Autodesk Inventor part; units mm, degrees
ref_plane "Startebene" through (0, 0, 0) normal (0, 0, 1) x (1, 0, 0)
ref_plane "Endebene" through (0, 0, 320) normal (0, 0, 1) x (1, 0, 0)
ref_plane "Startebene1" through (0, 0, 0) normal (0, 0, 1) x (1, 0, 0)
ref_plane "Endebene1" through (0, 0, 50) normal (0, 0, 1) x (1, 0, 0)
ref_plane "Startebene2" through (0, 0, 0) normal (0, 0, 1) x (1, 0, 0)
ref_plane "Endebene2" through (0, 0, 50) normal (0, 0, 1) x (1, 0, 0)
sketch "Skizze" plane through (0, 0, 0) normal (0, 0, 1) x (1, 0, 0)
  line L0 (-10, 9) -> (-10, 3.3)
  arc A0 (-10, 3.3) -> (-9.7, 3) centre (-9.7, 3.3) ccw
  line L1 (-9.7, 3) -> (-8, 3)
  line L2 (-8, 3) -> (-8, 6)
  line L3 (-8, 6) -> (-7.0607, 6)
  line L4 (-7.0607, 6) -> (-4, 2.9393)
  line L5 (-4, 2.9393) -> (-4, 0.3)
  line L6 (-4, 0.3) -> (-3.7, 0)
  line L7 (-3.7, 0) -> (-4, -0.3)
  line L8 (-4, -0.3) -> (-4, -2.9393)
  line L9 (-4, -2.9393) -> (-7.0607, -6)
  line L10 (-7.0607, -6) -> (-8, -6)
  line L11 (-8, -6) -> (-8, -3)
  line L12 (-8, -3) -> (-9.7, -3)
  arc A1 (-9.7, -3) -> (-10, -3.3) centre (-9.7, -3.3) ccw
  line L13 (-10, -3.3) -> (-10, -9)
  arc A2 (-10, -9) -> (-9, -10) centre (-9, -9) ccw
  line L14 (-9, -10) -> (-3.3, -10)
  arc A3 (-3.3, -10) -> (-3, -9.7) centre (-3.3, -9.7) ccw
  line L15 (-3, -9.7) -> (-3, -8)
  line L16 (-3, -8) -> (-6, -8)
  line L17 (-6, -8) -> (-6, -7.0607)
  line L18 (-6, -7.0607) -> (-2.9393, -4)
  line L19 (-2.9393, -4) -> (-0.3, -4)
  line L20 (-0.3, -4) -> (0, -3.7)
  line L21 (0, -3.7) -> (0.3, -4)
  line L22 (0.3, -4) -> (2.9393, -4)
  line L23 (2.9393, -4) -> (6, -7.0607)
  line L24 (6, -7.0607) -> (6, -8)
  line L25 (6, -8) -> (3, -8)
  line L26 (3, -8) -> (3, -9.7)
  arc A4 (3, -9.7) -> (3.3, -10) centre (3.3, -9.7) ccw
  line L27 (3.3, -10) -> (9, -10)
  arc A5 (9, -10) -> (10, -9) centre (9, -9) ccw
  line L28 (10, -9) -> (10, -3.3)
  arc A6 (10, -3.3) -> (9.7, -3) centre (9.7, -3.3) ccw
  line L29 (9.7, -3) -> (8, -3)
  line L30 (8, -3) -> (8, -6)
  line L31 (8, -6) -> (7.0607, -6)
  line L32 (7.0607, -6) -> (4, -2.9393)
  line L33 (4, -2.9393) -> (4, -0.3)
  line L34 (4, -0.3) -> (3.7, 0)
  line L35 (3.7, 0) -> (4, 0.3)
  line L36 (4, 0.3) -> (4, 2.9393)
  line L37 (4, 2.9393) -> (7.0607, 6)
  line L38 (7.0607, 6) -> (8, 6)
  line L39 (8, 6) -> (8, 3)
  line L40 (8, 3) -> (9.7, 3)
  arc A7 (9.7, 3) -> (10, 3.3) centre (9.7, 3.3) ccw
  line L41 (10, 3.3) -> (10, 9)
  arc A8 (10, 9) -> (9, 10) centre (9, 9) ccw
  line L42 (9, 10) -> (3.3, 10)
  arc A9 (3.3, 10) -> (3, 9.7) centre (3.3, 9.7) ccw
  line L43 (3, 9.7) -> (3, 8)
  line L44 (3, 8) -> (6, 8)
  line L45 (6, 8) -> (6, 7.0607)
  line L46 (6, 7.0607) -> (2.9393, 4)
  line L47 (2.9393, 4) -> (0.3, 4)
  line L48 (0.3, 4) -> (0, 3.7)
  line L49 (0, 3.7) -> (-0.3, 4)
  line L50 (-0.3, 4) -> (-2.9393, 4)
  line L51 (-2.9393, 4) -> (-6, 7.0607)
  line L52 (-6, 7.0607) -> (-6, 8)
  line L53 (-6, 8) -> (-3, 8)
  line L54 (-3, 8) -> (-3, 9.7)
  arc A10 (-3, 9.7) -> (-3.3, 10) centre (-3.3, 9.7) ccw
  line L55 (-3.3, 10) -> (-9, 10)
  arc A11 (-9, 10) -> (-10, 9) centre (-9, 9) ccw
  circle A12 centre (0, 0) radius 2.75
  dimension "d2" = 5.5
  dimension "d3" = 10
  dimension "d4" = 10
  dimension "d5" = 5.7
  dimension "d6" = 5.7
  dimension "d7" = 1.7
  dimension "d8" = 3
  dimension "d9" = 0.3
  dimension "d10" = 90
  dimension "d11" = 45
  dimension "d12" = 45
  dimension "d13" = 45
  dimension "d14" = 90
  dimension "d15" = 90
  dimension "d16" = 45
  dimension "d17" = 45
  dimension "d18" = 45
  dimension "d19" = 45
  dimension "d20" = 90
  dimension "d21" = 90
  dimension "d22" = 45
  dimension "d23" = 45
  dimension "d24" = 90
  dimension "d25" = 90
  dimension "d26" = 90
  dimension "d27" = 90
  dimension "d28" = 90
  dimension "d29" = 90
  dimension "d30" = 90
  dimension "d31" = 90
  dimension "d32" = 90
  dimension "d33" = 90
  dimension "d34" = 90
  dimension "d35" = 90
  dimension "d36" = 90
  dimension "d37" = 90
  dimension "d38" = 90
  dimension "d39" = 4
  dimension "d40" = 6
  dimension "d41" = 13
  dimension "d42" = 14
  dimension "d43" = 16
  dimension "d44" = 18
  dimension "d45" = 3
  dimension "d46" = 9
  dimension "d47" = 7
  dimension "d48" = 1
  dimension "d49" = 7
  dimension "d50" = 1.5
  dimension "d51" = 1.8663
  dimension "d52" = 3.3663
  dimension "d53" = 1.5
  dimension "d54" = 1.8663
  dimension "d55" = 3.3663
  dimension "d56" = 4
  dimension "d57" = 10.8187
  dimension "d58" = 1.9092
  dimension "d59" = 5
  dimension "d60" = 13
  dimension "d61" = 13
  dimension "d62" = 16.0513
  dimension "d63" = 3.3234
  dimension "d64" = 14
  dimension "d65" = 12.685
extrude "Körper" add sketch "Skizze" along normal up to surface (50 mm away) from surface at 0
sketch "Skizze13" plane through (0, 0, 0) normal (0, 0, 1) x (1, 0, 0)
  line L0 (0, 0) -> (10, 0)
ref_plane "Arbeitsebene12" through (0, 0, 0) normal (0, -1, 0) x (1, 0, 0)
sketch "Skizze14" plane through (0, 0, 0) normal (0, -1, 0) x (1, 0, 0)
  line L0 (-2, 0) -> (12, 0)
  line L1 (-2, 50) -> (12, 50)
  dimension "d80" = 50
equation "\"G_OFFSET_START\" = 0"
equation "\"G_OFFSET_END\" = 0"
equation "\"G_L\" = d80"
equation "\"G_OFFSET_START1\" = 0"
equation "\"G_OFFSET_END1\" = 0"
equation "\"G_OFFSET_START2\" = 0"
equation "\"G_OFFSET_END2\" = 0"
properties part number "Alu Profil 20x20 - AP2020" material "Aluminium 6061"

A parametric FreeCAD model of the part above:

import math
import FreeCAD as App
import Part
import Sketcher
Q = App.Units.Quantity

doc = App.newDocument("Part")
body = doc.addObject("PartDesign::Body", "Body")

# Sketch on XY plane
sketch1 = doc.addObject("Sketcher::SketchObject", "Sketch")
body.addObject(sketch1)
sketch1.AttachmentSupport = (doc.XY_Plane, [""])
sketch1.MapMode = "FlatFace"
sketch1.addGeometry(Part.ArcOfCircle(Part.Circle(App.Vector(-9, 9, 0), App.Vector(0, 0, 1), 1), math.radians(90), math.radians(180)), False)
sketch1.addGeometry(Part.LineSegment(App.Vector(-10, 9, 0), App.Vector(-10, 3.3, 0)), False)
sketch1.addGeometry(Part.ArcOfCircle(Part.Circle(App.Vector(-9.7, 3.3, 0), App.Vector(0, 0, 1), 0.3), math.radians(180), math.radians(270)), False)
sketch1.addGeometry(Part.LineSegment(App.Vector(-9.7, 3, 0), App.Vector(-8, 3, 0)), False)
sketch1.addGeometry(Part.LineSegment(App.Vector(-8, 3, 0), App.Vector(-8, 6, 0)), False)
sketch1.addGeometry(Part.LineSegment(App.Vector(-8, 6, 0), App.Vector(-7.06, 6, 0)), False)
sketch1.addGeometry(Part.LineSegment(App.Vector(-7.06, 6, 0), App.Vector(-4, 2.94, 0)), False)
sketch1.addGeometry(Part.LineSegment(App.Vector(-4, 2.94, 0), App.Vector(-4, 0.3, 0)), False)
sketch1.addGeometry(Part.LineSegment(App.Vector(-4, 0.3, 0), App.Vector(-3.7, 0, 0)), False)
sketch1.addGeometry(Part.LineSegment(App.Vector(-3.7, 0, 0), App.Vector(-4, -0.3, 0)), False)
sketch1.addGeometry(Part.LineSegment(App.Vector(-4, -0.3, 0), App.Vector(-4, -2.94, 0)), False)
sketch1.addGeometry(Part.LineSegment(App.Vector(-4, -2.94, 0), App.Vector(-7.06, -6, 0)), False)
sketch1.addGeometry(Part.LineSegment(App.Vector(-7.06, -6, 0), App.Vector(-8, -6, 0)), False)
sketch1.addGeometry(Part.LineSegment(App.Vector(-8, -6, 0), App.Vector(-8, -3, 0)), False)
sketch1.addGeometry(Part.LineSegment(App.Vector(-8, -3, 0), App.Vector(-9.7, -3, 0)), False)
sketch1.addGeometry(Part.ArcOfCircle(Part.Circle(App.Vector(-9.7, -3.3, 0), App.Vector(0, 0, 1), 0.3), math.radians(90), math.radians(180)), False)
sketch1.addGeometry(Part.LineSegment(App.Vector(-10, -3.3, 0), App.Vector(-10, -9, 0)), False)
sketch1.addGeometry(Part.ArcOfCircle(Part.Circle(App.Vector(-9, -9, 0), App.Vector(0, 0, 1), 1), math.radians(180), math.radians(270)), False)
sketch1.addGeometry(Part.LineSegment(App.Vector(-9, -10, 0), App.Vector(-3.3, -10, 0)), False)
sketch1.addGeometry(Part.ArcOfCircle(Part.Circle(App.Vector(-3.3, -9.7, 0), App.Vector(0, 0, 1), 0.3), math.radians(-90), math.radians(0)), False)
sketch1.addGeometry(Part.LineSegment(App.Vector(-3, -9.7, 0), App.Vector(-3, -8, 0)), False)
sketch1.addGeometry(Part.LineSegment(App.Vector(-3, -8, 0), App.Vector(-6, -8, 0)), False)
sketch1.addGeometry(Part.LineSegment(App.Vector(-6, -8, 0), App.Vector(-6, -7.06, 0)), False)
sketch1.addGeometry(Part.LineSegment(App.Vector(-6, -7.06, 0), App.Vector(-2.94, -4, 0)), False)
sketch1.addGeometry(Part.LineSegment(App.Vector(-2.94, -4, 0), App.Vector(-0.3, -4, 0)), False)
sketch1.addGeometry(Part.LineSegment(App.Vector(-0.3, -4, 0), App.Vector(0, -3.7, 0)), False)
sketch1.addGeometry(Part.LineSegment(App.Vector(0, -3.7, 0), App.Vector(0.3, -4, 0)), False)
sketch1.addGeometry(Part.LineSegment(App.Vector(0.3, -4, 0), App.Vector(2.94, -4, 0)), False)
sketch1.addGeometry(Part.LineSegment(App.Vector(2.94, -4, 0), App.Vector(6, -7.06, 0)), False)
sketch1.addGeometry(Part.LineSegment(App.Vector(6, -7.06, 0), App.Vector(6, -8, 0)), False)
sketch1.addGeometry(Part.LineSegment(App.Vector(6, -8, 0), App.Vector(3, -8, 0)), False)
sketch1.addGeometry(Part.LineSegment(App.Vector(3, -8, 0), App.Vector(3, -9.7, 0)), False)
sketch1.addGeometry(Part.ArcOfCircle(Part.Circle(App.Vector(3.3, -9.7, 0), App.Vector(0, 0, 1), 0.3), math.radians(180), math.radians(270)), False)
sketch1.addGeometry(Part.LineSegment(App.Vector(3.3, -10, 0), App.Vector(9, -10, 0)), False)
sketch1.addGeometry(Part.ArcOfCircle(Part.Circle(App.Vector(9, -9, 0), App.Vector(0, 0, 1), 1), math.radians(-90), math.radians(0)), False)
sketch1.addGeometry(Part.LineSegment(App.Vector(10, -9, 0), App.Vector(10, -3.3, 0)), False)
sketch1.addGeometry(Part.ArcOfCircle(Part.Circle(App.Vector(9.7, -3.3, 0), App.Vector(0, 0, 1), 0.3), math.radians(0), math.radians(90)), False)
sketch1.addGeometry(Part.LineSegment(App.Vector(9.7, -3, 0), App.Vector(8, -3, 0)), False)
sketch1.addGeometry(Part.LineSegment(App.Vector(8, -3, 0), App.Vector(8, -6, 0)), False)
sketch1.addGeometry(Part.LineSegment(App.Vector(8, -6, 0), App.Vector(7.06, -6, 0)), False)
sketch1.addGeometry(Part.LineSegment(App.Vector(7.06, -6, 0), App.Vector(4, -2.94, 0)), False)
sketch1.addGeometry(Part.LineSegment(App.Vector(4, -2.94, 0), App.Vector(4, -0.3, 0)), False)
sketch1.addGeometry(Part.LineSegment(App.Vector(4, -0.3, 0), App.Vector(3.7, 0, 0)), False)
sketch1.addGeometry(Part.LineSegment(App.Vector(3.7, 0, 0), App.Vector(4, 0.3, 0)), False)
sketch1.addGeometry(Part.LineSegment(App.Vector(4, 0.3, 0), App.Vector(4, 2.94, 0)), False)
sketch1.addGeometry(Part.LineSegment(App.Vector(4, 2.94, 0), App.Vector(7.06, 6, 0)), False)
sketch1.addGeometry(Part.LineSegment(App.Vector(7.06, 6, 0), App.Vector(8, 6, 0)), False)
sketch1.addGeometry(Part.LineSegment(App.Vector(8, 6, 0), App.Vector(8, 3, 0)), False)
sketch1.addGeometry(Part.LineSegment(App.Vector(8, 3, 0), App.Vector(9.7, 3, 0)), False)
sketch1.addGeometry(Part.ArcOfCircle(Part.Circle(App.Vector(9.7, 3.3, 0), App.Vector(0, 0, 1), 0.3), math.radians(-90), math.radians(0)), False)
sketch1.addGeometry(Part.LineSegment(App.Vector(10, 3.3, 0), App.Vector(10, 9, 0)), False)
sketch1.addGeometry(Part.ArcOfCircle(Part.Circle(App.Vector(9, 9, 0), App.Vector(0, 0, 1), 1), math.radians(0), math.radians(90)), False)
sketch1.addGeometry(Part.LineSegment(App.Vector(9, 10, 0), App.Vector(3.3, 10, 0)), False)
sketch1.addGeometry(Part.ArcOfCircle(Part.Circle(App.Vector(3.3, 9.7, 0), App.Vector(0, 0, 1), 0.3), math.radians(90), math.radians(180)), False)
sketch1.addGeometry(Part.LineSegment(App.Vector(3, 9.7, 0), App.Vector(3, 8, 0)), False)
sketch1.addGeometry(Part.LineSegment(App.Vector(3, 8, 0), App.Vector(6, 8, 0)), False)
sketch1.addGeometry(Part.LineSegment(App.Vector(6, 8, 0), App.Vector(6, 7.06, 0)), False)
sketch1.addGeometry(Part.LineSegment(App.Vector(6, 7.06, 0), App.Vector(2.94, 4, 0)), False)
sketch1.addGeometry(Part.LineSegment(App.Vector(2.94, 4, 0), App.Vector(0.3, 4, 0)), False)
sketch1.addGeometry(Part.LineSegment(App.Vector(0.3, 4, 0), App.Vector(0, 3.7, 0)), False)
sketch1.addGeometry(Part.LineSegment(App.Vector(0, 3.7, 0), App.Vector(-0.3, 4, 0)), False)
sketch1.addGeometry(Part.LineSegment(App.Vector(-0.3, 4, 0), App.Vector(-2.94, 4, 0)), False)
sketch1.addGeometry(Part.LineSegment(App.Vector(-2.94, 4, 0), App.Vector(-6, 7.06, 0)), False)
sketch1.addGeometry(Part.LineSegment(App.Vector(-6, 7.06, 0), App.Vector(-6, 8, 0)), False)
sketch1.addGeometry(Part.LineSegment(App.Vector(-6, 8, 0), App.Vector(-3, 8, 0)), False)
sketch1.addGeometry(Part.LineSegment(App.Vector(-3, 8, 0), App.Vector(-3, 9.7, 0)), False)
sketch1.addGeometry(Part.ArcOfCircle(Part.Circle(App.Vector(-3.3, 9.7, 0), App.Vector(0, 0, 1), 0.3), math.radians(0), math.radians(90)), False)
sketch1.addGeometry(Part.LineSegment(App.Vector(-3.3, 10, 0), App.Vector(-9, 10, 0)), False)
sketch1.addGeometry(Part.Circle(App.Vector(0, 0, 0), App.Vector(0, 0, 1), 2.75), False)
sketch1.addConstraint(Sketcher.Constraint("Tangent", 0, 2, 1, 1))
sketch1.addConstraint(Sketcher.Constraint("Tangent", 1, 2, 2, 1))
sketch1.addConstraint(Sketcher.Constraint("Tangent", 2, 2, 3, 1))
sketch1.addConstraint(Sketcher.Constraint("Coincident", 3, 2, 4, 1))
sketch1.addConstraint(Sketcher.Constraint("Coincident", 4, 2, 5, 1))
sketch1.addConstraint(Sketcher.Constraint("Coincident", 5, 2, 6, 1))
sketch1.addConstraint(Sketcher.Constraint("Coincident", 6, 2, 7, 1))
sketch1.addConstraint(Sketcher.Constraint("Coincident", 7, 2, 8, 1))
sketch1.addConstraint(Sketcher.Constraint("Coincident", 8, 2, 9, 1))
sketch1.addConstraint(Sketcher.Constraint("Coincident", 9, 2, 10, 1))
sketch1.addConstraint(Sketcher.Constraint("Coincident", 10, 2, 11, 1))
sketch1.addConstraint(Sketcher.Constraint("Coincident", 11, 2, 12, 1))
sketch1.addConstraint(Sketcher.Constraint("Coincident", 12, 2, 13, 1))
sketch1.addConstraint(Sketcher.Constraint("Coincident", 13, 2, 14, 1))
sketch1.addConstraint(Sketcher.Constraint("Tangent", 14, 2, 15, 1))
sketch1.addConstraint(Sketcher.Constraint("Tangent", 15, 2, 16, 1))
sketch1.addConstraint(Sketcher.Constraint("Tangent", 16, 2, 17, 1))
sketch1.addConstraint(Sketcher.Constraint("Tangent", 17, 2, 18, 1))
sketch1.addConstraint(Sketcher.Constraint("Tangent", 18, 2, 19, 1))
sketch1.addConstraint(Sketcher.Constraint("Tangent", 19, 2, 20, 1))
sketch1.addConstraint(Sketcher.Constraint("Coincident", 20, 2, 21, 1))
sketch1.addConstraint(Sketcher.Constraint("Coincident", 21, 2, 22, 1))
sketch1.addConstraint(Sketcher.Constraint("Coincident", 22, 2, 23, 1))
sketch1.addConstraint(Sketcher.Constraint("Coincident", 23, 2, 24, 1))
sketch1.addConstraint(Sketcher.Constraint("Coincident", 24, 2, 25, 1))
sketch1.addConstraint(Sketcher.Constraint("Coincident", 25, 2, 26, 1))
sketch1.addConstraint(Sketcher.Constraint("Coincident", 26, 2, 27, 1))
sketch1.addConstraint(Sketcher.Constraint("Coincident", 27, 2, 28, 1))
sketch1.addConstraint(Sketcher.Constraint("Coincident", 28, 2, 29, 1))
sketch1.addConstraint(Sketcher.Constraint("Coincident", 29, 2, 30, 1))
sketch1.addConstraint(Sketcher.Constraint("Coincident", 30, 2, 31, 1))
sketch1.addConstraint(Sketcher.Constraint("Tangent", 31, 2, 32, 1))
sketch1.addConstraint(Sketcher.Constraint("Tangent", 32, 2, 33, 1))
sketch1.addConstraint(Sketcher.Constraint("Tangent", 33, 2, 34, 1))
sketch1.addConstraint(Sketcher.Constraint("Tangent", 34, 2, 35, 1))
sketch1.addConstraint(Sketcher.Constraint("Tangent", 35, 2, 36, 1))
sketch1.addConstraint(Sketcher.Constraint("Tangent", 36, 2, 37, 1))
sketch1.addConstraint(Sketcher.Constraint("Coincident", 37, 2, 38, 1))
sketch1.addConstraint(Sketcher.Constraint("Coincident", 38, 2, 39, 1))
sketch1.addConstraint(Sketcher.Constraint("Coincident", 39, 2, 40, 1))
sketch1.addConstraint(Sketcher.Constraint("Coincident", 40, 2, 41, 1))
sketch1.addConstraint(Sketcher.Constraint("Coincident", 41, 2, 42, 1))
sketch1.addConstraint(Sketcher.Constraint("Coincident", 42, 2, 43, 1))
sketch1.addConstraint(Sketcher.Constraint("Coincident", 43, 2, 44, 1))
sketch1.addConstraint(Sketcher.Constraint("Coincident", 44, 2, 45, 1))
sketch1.addConstraint(Sketcher.Constraint("Coincident", 45, 2, 46, 1))
sketch1.addConstraint(Sketcher.Constraint("Coincident", 46, 2, 47, 1))
sketch1.addConstraint(Sketcher.Constraint("Coincident", 47, 2, 48, 1))
sketch1.addConstraint(Sketcher.Constraint("Tangent", 48, 2, 49, 1))
sketch1.addConstraint(Sketcher.Constraint("Tangent", 49, 2, 50, 1))
sketch1.addConstraint(Sketcher.Constraint("Tangent", 50, 2, 51, 1))
sketch1.addConstraint(Sketcher.Constraint("Tangent", 51, 2, 52, 1))
sketch1.addConstraint(Sketcher.Constraint("Tangent", 52, 2, 53, 1))
sketch1.addConstraint(Sketcher.Constraint("Tangent", 53, 2, 54, 1))
sketch1.addConstraint(Sketcher.Constraint("Coincident", 54, 2, 55, 1))
sketch1.addConstraint(Sketcher.Constraint("Coincident", 55, 2, 56, 1))
sketch1.addConstraint(Sketcher.Constraint("Coincident", 56, 2, 57, 1))
sketch1.addConstraint(Sketcher.Constraint("Coincident", 57, 2, 58, 1))
sketch1.addConstraint(Sketcher.Constraint("Coincident", 58, 2, 59, 1))
sketch1.addConstraint(Sketcher.Constraint("Coincident", 59, 2, 60, 1))
sketch1.addConstraint(Sketcher.Constraint("Coincident", 60, 2, 61, 1))
sketch1.addConstraint(Sketcher.Constraint("Coincident", 61, 2, 62, 1))
sketch1.addConstraint(Sketcher.Constraint("Coincident", 62, 2, 63, 1))
sketch1.addConstraint(Sketcher.Constraint("Coincident", 63, 2, 64, 1))
sketch1.addConstraint(Sketcher.Constraint("Coincident", 64, 2, 65, 1))
sketch1.addConstraint(Sketcher.Constraint("Tangent", 65, 2, 66, 1))
sketch1.addConstraint(Sketcher.Constraint("Tangent", 66, 2, 67, 1))
sketch1.addConstraint(Sketcher.Constraint("Tangent", 67, 2, 0, 1))
sketch1.addConstraint(Sketcher.Constraint("Vertical", 1))
sketch1.addConstraint(Sketcher.Constraint("Horizontal", 3))
sketch1.addConstraint(Sketcher.Constraint("Vertical", 4))
sketch1.addConstraint(Sketcher.Constraint("Horizontal", 5))
sketch1.addConstraint(Sketcher.Constraint("Vertical", 7))
sketch1.addConstraint(Sketcher.Constraint("Vertical", 10))
sketch1.addConstraint(Sketcher.Constraint("Horizontal", 12))
sketch1.addConstraint(Sketcher.Constraint("Vertical", 13))
sketch1.addConstraint(Sketcher.Constraint("Horizontal", 14))
sketch1.addConstraint(Sketcher.Constraint("Vertical", 16))
sketch1.addConstraint(Sketcher.Constraint("Horizontal", 18))
sketch1.addConstraint(Sketcher.Constraint("Vertical", 20))
sketch1.addConstraint(Sketcher.Constraint("Horizontal", 21))
sketch1.addConstraint(Sketcher.Constraint("Vertical", 22))
sketch1.addConstraint(Sketcher.Constraint("Horizontal", 24))
sketch1.addConstraint(Sketcher.Constraint("Horizontal", 27))
sketch1.addConstraint(Sketcher.Constraint("Vertical", 29))
sketch1.addConstraint(Sketcher.Constraint("Horizontal", 30))
sketch1.addConstraint(Sketcher.Constraint("Vertical", 31))
sketch1.addConstraint(Sketcher.Constraint("Horizontal", 33))
sketch1.addConstraint(Sketcher.Constraint("Vertical", 35))
sketch1.addConstraint(Sketcher.Constraint("Horizontal", 37))
sketch1.addConstraint(Sketcher.Constraint("Vertical", 38))
sketch1.addConstraint(Sketcher.Constraint("Horizontal", 39))
sketch1.addConstraint(Sketcher.Constraint("Vertical", 41))
sketch1.addConstraint(Sketcher.Constraint("Vertical", 44))
sketch1.addConstraint(Sketcher.Constraint("Horizontal", 46))
sketch1.addConstraint(Sketcher.Constraint("Vertical", 47))
sketch1.addConstraint(Sketcher.Constraint("Horizontal", 48))
sketch1.addConstraint(Sketcher.Constraint("Vertical", 50))
sketch1.addConstraint(Sketcher.Constraint("Horizontal", 52))
sketch1.addConstraint(Sketcher.Constraint("Vertical", 54))
sketch1.addConstraint(Sketcher.Constraint("Horizontal", 55))
sketch1.addConstraint(Sketcher.Constraint("Vertical", 56))
sketch1.addConstraint(Sketcher.Constraint("Horizontal", 58))
sketch1.addConstraint(Sketcher.Constraint("Horizontal", 61))
sketch1.addConstraint(Sketcher.Constraint("Vertical", 63))
sketch1.addConstraint(Sketcher.Constraint("Horizontal", 64))
sketch1.addConstraint(Sketcher.Constraint("Vertical", 65))
sketch1.addConstraint(Sketcher.Constraint("Horizontal", 67))
sketch1.addConstraint(Sketcher.Constraint("Coincident", 68, 3, -1, 1))
sketch1.addConstraint(Sketcher.Constraint("Equal", 2, 15))
sketch1.addConstraint(Sketcher.Constraint("Equal", 0, 17))
sketch1.addConstraint(Sketcher.Constraint("Equal", 15, 19))
sketch1.addConstraint(Sketcher.Constraint("Equal", 19, 32))
sketch1.addConstraint(Sketcher.Constraint("Equal", 17, 34))
sketch1.addConstraint(Sketcher.Constraint("Equal", 32, 36))
sketch1.addConstraint(Sketcher.Constraint("Equal", 36, 49))
sketch1.addConstraint(Sketcher.Constraint("Equal", 34, 51))
sketch1.addConstraint(Sketcher.Constraint("Equal", 49, 53))
sketch1.addConstraint(Sketcher.Constraint("Equal", 53, 66))
sketch1.addConstraint(Sketcher.Constraint("Symmetric", 0, 3, 34, 3, -1, 1))
sketch1.addConstraint(Sketcher.Constraint("Symmetric", 15, 3, 49, 3, -1, 1))
sketch1.addConstraint(Sketcher.Constraint("Symmetric", 19, 3, 53, 3, -1, 1))
sketch1.addConstraint(Sketcher.Constraint("Symmetric", 3, 2, 37, 2, -1, 1))
sketch1.addConstraint(Sketcher.Constraint("Symmetric", 5, 2, 39, 2, -1, 1))
sketch1.addConstraint(Sketcher.Constraint("Symmetric", 6, 2, 40, 2, -1, 1))
sketch1.addConstraint(Sketcher.Constraint("Symmetric", 8, 2, 42, 2, -1, 1))
sketch1.addConstraint(Sketcher.Constraint("Symmetric", 9, 2, 43, 2, -1, 1))
sketch1.addConstraint(Sketcher.Constraint("Symmetric", 11, 2, 45, 2, -1, 1))
sketch1.addConstraint(Sketcher.Constraint("Symmetric", 21, 2, 55, 2, -1, 1))
sketch1.addConstraint(Sketcher.Constraint("Symmetric", 23, 2, 57, 2, -1, 1))
sketch1.addConstraint(Sketcher.Constraint("Symmetric", 25, 2, 59, 2, -1, 1))
sketch1.addConstraint(Sketcher.Constraint("Symmetric", 26, 2, 60, 2, -1, 1))
sketch1.addConstraint(Sketcher.Constraint("Symmetric", 28, 2, 62, 2, -1, 1))
sketch1.addConstraint(Sketcher.Constraint("Symmetric", 30, 2, 64, 2, -1, 1))
sketch1.addConstraint(Sketcher.Constraint("Symmetric", 19, 3, 32, 3, -2))
sketch1.addConstraint(Sketcher.Constraint("Symmetric", 15, 3, 36, 3, -2))
sketch1.addConstraint(Sketcher.Constraint("Symmetric", 24, 2, 26, 2, -2))
sketch1.addConstraint(Sketcher.Constraint("Symmetric", 22, 2, 28, 2, -2))
sketch1.addConstraint(Sketcher.Constraint("Symmetric", 12, 2, 38, 2, -2))
sketch1.addConstraint(Sketcher.Constraint("Symmetric", 10, 2, 40, 2, -2))
sketch1.addConstraint(Sketcher.Constraint("PointOnObject", 8, 2, -1))
sketch1.addConstraint(Sketcher.Constraint("PointOnObject", 25, 2, -2))
sketch1.addConstraint(Sketcher.Constraint("Parallel", 6, 8))
sketch1.addConstraint(Sketcher.Constraint("Perpendicular", 8, 9))
sketch1.addConstraint(Sketcher.Constraint("Parallel", 9, 11))
sketch1.addConstraint(Sketcher.Constraint("Parallel", 11, 23))
sketch1.addConstraint(Sketcher.Constraint("Parallel", 23, 25))
sketch1.addConstraint(Sketcher.Constraint("Perpendicular", 25, 26))
sketch1.addConstraint(Sketcher.Constraint("Parallel", 26, 28))
sketch1.addConstraint(Sketcher.Constraint("Parallel", 40, 42))
sketch1.addConstraint(Sketcher.Constraint("Parallel", 43, 45))
sketch1.addConstraint(Sketcher.Constraint("Parallel", 45, 57))
sketch1.addConstraint(Sketcher.Constraint("Parallel", 57, 59))
sketch1.addConstraint(Sketcher.Constraint("Parallel", 60, 62))
sketch1.addConstraint(Sketcher.Constraint("Horizontal", 21, 2, 29, 2))
sketch1.addConstraint(Sketcher.Constraint("Vertical", 38, 2, 46, 2))
sketch1.addConstraint(Sketcher.Constraint("Equal", 67, 1))
sketch1.addConstraint(Sketcher.Constraint("Equal", 64, 4))
sketch1.addConstraint(Sketcher.Constraint("Equal", 61, 7))
sketch1.addConstraint(Sketcher.Constraint("Equal", 48, 20))
sketch1.addConstraint(Sketcher.Constraint("Equal", 46, 22))
sketch1.addConstraint(Sketcher.Constraint("Equal", 11, 23))
sketch1.addConstraint(Sketcher.Constraint("Equal", 9, 25))
sketch1.addConstraint(Sketcher.Constraint("Radius", 0, Q("1 mm")))
sketch1.addConstraint(Sketcher.Constraint("Diameter", 68, Q("5.5 mm")))
sketch1.addConstraint(Sketcher.Constraint("Radius", 2, Q("0.3 mm")))
sketch1.addConstraint(Sketcher.Constraint("DistanceX", 21, 2, 21, 1, Q("3 mm")))
sketch1.addConstraint(Sketcher.Constraint("DistanceX", 3, 1, 3, 2, Q("1.7 mm")))
sketch1.addConstraint(Sketcher.Constraint("DistanceX", 18, 1, 18, 2, Q("5.7 mm")))
sketch1.addConstraint(Sketcher.Constraint("DistanceX", 0, 3, -1, 1, Q("9 mm")))
sketch1.addConstraint(Sketcher.Constraint("DistanceX", 6, 2, -1, 1, Q("4 mm")))
sketch1.addConstraint(Sketcher.Constraint("DistanceY", -1, 1, 7, 2, Q("0.3 mm")))
sketch1.addConstraint(Sketcher.Constraint("DistanceX", 5, 1, 5, 2, Q("0.9393 mm")))
pad1 = doc.addObject("PartDesign::Pad", "Pad")
body.addObject(pad1)
pad1.Profile = sketch1
pad1.Length = 50

doc.recompute()
